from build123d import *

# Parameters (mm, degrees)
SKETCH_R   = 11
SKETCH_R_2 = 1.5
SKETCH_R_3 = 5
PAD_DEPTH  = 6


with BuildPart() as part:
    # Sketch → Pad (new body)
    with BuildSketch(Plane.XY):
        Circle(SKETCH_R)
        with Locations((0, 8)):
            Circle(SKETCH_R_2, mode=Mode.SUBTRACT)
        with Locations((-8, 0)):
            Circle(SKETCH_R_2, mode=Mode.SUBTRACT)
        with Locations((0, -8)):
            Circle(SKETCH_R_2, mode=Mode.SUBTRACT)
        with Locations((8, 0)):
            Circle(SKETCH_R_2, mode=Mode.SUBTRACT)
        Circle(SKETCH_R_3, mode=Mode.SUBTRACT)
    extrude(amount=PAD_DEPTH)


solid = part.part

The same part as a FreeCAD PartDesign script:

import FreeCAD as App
import Part
import Sketcher
from FreeCAD import Vector
Q = App.Units.Quantity

doc = App.newDocument("Part")
body = doc.addObject("PartDesign::Body", "Body")

# Sketch on XY plane
sketch1 = body.newObject("Sketcher::SketchObject", "Sketch")
sketch1.AttachmentSupport = (doc.getObject("XY_Plane"), [""])
sketch1.MapMode = "FlatFace"
sketch1.addGeometry([
    Part.Circle(Vector(0, 0, 0), Vector(0, 0, 1), 11),  # 0
    Part.Circle(Vector(0, -8, 0), Vector(0, 0, 1), 1.5),  # 1
    Part.Circle(Vector(-8, 0, 0), Vector(0, 0, 1), 1.5),  # 2
    Part.Circle(Vector(0, 0, 0), Vector(0, 0, 1), 5),  # 3
    Part.Circle(Vector(8, 0, 0), Vector(0, 0, 1), 1.5),  # 4
    Part.Circle(Vector(0, 8, 0), Vector(0, 0, 1), 1.5),  # 5
], False)
sketch1.addConstraint([
    Sketcher.Constraint("Coincident", 0, 3, -1, 1),
    Sketcher.Constraint("Coincident", 3, 3, -1, 1),
    Sketcher.Constraint("Equal", 1, 2),
    Sketcher.Constraint("Equal", 2, 4),
    Sketcher.Constraint("Equal", 4, 5),
    Sketcher.Constraint("Symmetric", 2, 3, 4, 3, -1, 1),
    Sketcher.Constraint("Symmetric", 1, 3, 5, 3, -1, 1),
    Sketcher.Constraint("PointOnObject", 1, 3, -2),
    Sketcher.Constraint("PointOnObject", 2, 3, -1),
    Sketcher.Constraint("Diameter", 0, Q("22 mm")),
    Sketcher.Constraint("Diameter", 1, Q("3 mm")),
    Sketcher.Constraint("Diameter", 3, Q("10 mm")),
    Sketcher.Constraint("DistanceY", 1, 3, -1, 1, Q("8 mm")),
    Sketcher.Constraint("DistanceX", 2, 3, -1, 1, Q("8 mm")),
])
pad1 = body.newObject("PartDesign::Pad", "Pad")
pad1.Profile = sketch1
pad1.Length = 6

doc.recompute()
